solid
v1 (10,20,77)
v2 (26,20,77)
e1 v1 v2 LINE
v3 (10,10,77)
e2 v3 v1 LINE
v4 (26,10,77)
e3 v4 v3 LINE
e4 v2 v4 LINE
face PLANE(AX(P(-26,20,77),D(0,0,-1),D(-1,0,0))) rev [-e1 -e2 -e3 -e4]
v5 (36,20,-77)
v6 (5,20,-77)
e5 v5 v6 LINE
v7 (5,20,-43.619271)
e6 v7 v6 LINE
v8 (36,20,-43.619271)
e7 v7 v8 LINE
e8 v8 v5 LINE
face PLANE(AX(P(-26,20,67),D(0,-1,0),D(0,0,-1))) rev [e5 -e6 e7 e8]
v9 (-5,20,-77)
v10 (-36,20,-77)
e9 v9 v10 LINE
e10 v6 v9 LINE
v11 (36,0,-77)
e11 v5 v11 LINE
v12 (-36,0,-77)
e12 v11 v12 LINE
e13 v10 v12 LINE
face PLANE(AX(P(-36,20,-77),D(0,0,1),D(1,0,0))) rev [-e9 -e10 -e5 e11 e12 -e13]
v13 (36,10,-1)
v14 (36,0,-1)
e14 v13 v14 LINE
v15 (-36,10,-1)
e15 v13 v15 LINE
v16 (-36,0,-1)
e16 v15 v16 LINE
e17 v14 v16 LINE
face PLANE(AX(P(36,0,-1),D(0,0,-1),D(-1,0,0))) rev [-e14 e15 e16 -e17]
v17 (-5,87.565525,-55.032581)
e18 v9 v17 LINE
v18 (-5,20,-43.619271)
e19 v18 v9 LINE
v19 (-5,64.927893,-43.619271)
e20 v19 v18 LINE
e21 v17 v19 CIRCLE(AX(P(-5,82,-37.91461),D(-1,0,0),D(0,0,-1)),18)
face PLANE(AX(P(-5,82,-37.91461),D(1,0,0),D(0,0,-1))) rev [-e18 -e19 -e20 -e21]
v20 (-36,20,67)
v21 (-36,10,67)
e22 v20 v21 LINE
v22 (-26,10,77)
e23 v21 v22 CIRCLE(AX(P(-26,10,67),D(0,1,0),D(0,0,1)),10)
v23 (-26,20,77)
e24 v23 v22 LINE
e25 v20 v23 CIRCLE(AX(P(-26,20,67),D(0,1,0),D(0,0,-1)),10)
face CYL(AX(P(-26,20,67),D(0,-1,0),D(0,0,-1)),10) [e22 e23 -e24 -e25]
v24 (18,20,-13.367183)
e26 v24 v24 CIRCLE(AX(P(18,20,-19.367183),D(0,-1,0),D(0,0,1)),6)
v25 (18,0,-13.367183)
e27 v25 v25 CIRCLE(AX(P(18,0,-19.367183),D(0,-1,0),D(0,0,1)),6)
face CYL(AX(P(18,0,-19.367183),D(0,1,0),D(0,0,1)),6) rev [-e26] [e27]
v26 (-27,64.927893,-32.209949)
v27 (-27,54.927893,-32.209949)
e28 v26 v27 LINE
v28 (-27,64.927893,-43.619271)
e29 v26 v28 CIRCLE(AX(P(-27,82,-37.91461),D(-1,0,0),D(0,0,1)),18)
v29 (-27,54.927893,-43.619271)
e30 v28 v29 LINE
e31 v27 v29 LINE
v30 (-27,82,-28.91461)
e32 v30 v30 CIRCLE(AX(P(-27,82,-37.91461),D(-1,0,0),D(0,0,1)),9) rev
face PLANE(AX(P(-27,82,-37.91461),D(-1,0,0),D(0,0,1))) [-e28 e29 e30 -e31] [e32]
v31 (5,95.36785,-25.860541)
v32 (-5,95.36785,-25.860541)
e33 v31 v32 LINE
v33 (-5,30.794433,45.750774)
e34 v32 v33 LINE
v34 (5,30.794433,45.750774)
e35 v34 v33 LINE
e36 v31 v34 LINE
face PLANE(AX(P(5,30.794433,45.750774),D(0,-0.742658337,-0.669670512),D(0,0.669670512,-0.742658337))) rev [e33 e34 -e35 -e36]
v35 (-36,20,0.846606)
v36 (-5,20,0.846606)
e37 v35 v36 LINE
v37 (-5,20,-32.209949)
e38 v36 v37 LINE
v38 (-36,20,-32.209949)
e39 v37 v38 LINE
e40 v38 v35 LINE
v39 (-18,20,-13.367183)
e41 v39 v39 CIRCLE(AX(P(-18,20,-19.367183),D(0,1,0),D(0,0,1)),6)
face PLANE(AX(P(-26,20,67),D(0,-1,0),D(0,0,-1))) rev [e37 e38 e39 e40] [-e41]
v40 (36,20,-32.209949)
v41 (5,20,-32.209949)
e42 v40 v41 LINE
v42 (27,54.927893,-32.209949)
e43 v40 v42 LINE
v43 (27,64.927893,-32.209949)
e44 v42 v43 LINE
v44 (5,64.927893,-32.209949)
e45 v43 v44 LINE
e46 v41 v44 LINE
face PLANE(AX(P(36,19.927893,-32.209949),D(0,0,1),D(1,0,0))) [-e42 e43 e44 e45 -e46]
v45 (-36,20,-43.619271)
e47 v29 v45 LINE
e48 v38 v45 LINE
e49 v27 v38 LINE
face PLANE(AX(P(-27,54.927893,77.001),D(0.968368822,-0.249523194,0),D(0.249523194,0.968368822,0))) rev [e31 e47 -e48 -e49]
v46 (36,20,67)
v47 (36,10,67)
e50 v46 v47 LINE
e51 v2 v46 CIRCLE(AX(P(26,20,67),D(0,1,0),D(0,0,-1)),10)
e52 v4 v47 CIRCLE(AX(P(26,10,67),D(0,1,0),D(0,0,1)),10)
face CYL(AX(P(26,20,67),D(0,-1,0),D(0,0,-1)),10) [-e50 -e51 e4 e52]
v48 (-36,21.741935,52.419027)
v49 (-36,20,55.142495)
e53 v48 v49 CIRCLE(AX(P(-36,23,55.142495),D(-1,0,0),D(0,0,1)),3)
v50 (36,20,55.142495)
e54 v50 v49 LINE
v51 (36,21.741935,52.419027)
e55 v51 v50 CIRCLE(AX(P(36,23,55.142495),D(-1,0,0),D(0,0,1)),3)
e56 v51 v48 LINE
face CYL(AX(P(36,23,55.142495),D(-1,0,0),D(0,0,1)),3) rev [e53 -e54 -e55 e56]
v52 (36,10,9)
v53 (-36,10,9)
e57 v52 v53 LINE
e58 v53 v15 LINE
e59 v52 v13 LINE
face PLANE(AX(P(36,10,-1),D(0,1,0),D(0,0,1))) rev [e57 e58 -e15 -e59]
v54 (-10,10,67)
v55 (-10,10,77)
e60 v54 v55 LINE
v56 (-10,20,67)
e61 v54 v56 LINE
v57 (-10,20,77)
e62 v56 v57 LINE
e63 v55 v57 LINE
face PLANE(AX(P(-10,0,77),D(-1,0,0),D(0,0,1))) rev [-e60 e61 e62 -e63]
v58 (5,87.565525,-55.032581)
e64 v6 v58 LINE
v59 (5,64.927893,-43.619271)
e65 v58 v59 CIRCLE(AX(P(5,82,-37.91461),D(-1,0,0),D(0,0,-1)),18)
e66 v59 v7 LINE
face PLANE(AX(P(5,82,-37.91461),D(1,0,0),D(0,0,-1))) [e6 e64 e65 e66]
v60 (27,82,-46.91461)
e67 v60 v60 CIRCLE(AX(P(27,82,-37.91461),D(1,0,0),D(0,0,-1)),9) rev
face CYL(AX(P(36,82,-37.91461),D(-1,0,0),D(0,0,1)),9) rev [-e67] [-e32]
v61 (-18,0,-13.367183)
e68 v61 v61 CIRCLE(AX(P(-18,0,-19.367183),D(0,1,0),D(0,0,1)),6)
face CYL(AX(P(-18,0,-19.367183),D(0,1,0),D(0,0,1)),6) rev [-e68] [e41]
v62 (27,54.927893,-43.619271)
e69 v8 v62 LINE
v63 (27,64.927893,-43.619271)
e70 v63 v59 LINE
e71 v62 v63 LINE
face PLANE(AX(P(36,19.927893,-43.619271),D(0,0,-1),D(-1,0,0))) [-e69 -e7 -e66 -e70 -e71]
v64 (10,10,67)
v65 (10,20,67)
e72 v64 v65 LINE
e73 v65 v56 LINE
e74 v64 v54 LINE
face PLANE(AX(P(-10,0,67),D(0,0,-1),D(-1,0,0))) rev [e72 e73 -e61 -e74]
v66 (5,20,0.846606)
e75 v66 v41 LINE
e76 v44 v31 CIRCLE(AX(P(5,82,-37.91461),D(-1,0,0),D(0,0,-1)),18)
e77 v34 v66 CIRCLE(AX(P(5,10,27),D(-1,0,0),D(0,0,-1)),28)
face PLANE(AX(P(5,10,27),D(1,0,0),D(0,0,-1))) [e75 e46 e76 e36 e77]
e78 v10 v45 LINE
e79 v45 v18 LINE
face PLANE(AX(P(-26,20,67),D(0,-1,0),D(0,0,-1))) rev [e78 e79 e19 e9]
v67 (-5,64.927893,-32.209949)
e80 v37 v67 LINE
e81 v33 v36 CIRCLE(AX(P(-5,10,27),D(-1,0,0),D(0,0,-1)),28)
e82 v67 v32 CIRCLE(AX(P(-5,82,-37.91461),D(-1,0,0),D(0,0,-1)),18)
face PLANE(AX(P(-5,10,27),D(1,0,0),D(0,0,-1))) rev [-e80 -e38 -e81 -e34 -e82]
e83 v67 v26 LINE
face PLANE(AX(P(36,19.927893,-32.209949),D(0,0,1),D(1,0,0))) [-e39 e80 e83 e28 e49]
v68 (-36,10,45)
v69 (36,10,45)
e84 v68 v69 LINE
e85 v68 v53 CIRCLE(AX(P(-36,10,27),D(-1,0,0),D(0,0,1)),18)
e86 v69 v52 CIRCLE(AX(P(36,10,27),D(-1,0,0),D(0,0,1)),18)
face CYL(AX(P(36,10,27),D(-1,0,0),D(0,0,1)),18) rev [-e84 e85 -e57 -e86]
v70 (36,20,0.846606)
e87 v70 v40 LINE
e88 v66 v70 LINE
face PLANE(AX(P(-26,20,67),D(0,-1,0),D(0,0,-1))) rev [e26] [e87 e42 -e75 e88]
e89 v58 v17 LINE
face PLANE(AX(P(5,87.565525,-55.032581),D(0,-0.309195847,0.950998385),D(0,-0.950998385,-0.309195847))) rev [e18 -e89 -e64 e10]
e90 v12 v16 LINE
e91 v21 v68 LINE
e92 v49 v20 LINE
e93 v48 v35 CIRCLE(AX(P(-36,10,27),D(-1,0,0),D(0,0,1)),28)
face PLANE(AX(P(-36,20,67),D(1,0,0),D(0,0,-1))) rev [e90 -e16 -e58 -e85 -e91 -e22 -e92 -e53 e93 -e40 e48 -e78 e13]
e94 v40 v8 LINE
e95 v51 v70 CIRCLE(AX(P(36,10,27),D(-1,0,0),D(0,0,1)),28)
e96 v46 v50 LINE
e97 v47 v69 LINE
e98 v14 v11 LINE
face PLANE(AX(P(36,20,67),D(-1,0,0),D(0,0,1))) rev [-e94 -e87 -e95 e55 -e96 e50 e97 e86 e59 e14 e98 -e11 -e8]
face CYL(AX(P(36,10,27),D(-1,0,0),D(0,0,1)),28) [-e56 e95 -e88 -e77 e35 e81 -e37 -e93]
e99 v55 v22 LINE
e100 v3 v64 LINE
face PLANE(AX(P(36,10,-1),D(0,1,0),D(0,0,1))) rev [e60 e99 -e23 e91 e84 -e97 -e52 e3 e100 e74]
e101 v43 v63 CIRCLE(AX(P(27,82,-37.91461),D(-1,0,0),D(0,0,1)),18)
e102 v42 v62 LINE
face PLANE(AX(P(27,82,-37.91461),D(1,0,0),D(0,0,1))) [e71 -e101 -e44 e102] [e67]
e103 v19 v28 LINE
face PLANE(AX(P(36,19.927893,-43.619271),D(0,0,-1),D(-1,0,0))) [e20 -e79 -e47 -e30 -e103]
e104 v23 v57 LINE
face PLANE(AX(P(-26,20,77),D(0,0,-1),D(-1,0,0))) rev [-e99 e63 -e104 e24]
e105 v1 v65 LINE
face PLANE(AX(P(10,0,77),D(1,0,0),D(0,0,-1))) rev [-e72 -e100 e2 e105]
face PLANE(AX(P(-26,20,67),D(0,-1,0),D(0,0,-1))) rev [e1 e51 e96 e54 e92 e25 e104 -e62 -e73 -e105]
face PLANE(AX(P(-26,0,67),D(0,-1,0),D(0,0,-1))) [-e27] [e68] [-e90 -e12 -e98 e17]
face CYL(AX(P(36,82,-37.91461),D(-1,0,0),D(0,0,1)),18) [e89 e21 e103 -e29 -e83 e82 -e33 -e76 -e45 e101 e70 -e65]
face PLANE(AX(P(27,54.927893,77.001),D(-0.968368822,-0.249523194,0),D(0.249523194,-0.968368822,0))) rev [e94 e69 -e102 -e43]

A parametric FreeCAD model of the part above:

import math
import FreeCAD as App
import Part
import Sketcher
from FreeCAD import Vector


def add_polygon(sketch, points):
    """Adds a closed chain of lines whose ends are joined by coincident constraints."""
    first, n = sketch.GeometryCount, len(points)
    for a, b in zip(points, points[1:] + points[:1]):
        sketch.addGeometry(Part.LineSegment(App.Vector(*a, 0), App.Vector(*b, 0)), False)
    for i in range(n):
        sketch.addConstraint(Sketcher.Constraint("Coincident", first + i, 2, first + (i + 1) % n, 1))

doc = App.newDocument("Part")
body = doc.addObject("PartDesign::Body", "Body")

# Sketch on XZ plane
sketch1 = doc.addObject("Sketcher::SketchObject", "Sketch")
body.addObject(sketch1)
sketch1.AttachmentSupport = (doc.XZ_Plane, [""])
sketch1.MapMode = "FlatFace"
sketch1.addGeometry([
    Part.LineSegment(Vector(-26, 77, 0), Vector(26, 77, 0)),  # 0
    Part.ArcOfCircle(Part.Circle(Vector(26, 67, 0), Vector(0, 0, 1), 10), math.radians(0), math.radians(90)),  # 1
    Part.LineSegment(Vector(36, 67, 0), Vector(36, -77, 0)),  # 2
    Part.LineSegment(Vector(36, -77, 0), Vector(-36, -77, 0)),  # 3
    Part.LineSegment(Vector(-36, -77, 0), Vector(-36, 67, 0)),  # 4
    Part.ArcOfCircle(Part.Circle(Vector(-26, 67, 0), Vector(0, 0, 1), 10), math.radians(90), math.radians(180)),  # 5
], False)
sketch1.addConstraint([
    Sketcher.Constraint("Tangent", 0, 2, 1, 2),
    Sketcher.Constraint("Tangent", 1, 1, 2, 1),
    Sketcher.Constraint("Coincident", 2, 2, 3, 1),
    Sketcher.Constraint("Coincident", 3, 2, 4, 1),
    Sketcher.Constraint("Tangent", 4, 2, 5, 2),
    Sketcher.Constraint("Tangent", 5, 1, 0, 1),
    Sketcher.Constraint("Horizontal", 0),
    Sketcher.Constraint("Vertical", 2),
    Sketcher.Constraint("Horizontal", 3),
    Sketcher.Constraint("Vertical", 4),
    Sketcher.Constraint("Equal", 1, 5),
    Sketcher.Constraint("Radius", 1, 10.0),
    Sketcher.Constraint("DistanceX", 0, 1, 0, 2, 52.0),
    Sketcher.Constraint("DistanceY", 2, 2, 2, 1, 144.0),
    Sketcher.Constraint("DistanceX", -1, 1, 1, 3, 26.0),
    Sketcher.Constraint("DistanceY", -1, 1, 1, 3, 67.0),
])
pad1 = doc.addObject("PartDesign::Pad", "Pad")
body.addObject(pad1)
pad1.Profile = sketch1
pad1.Length = 20
pad1.Reversed = True

# Sketch on YZ plane
sketch2 = doc.addObject("Sketcher::SketchObject", "Sketch001")
body.addObject(sketch2)
sketch2.AttachmentSupport = (doc.YZ_Plane, [""])
sketch2.MapMode = "FlatFace"
sketch2.AttachmentOffset = App.Placement(Vector(0, 0, -36), App.Rotation())
add_polygon(sketch2, [(10, -1), (0, -1), (0, 77), (10, 77)])  # lines 0-3
sketch2.addConstraint([
    Sketcher.Constraint("Horizontal", 0),
    Sketcher.Constraint("Vertical", 1),
    Sketcher.Constraint("Horizontal", 2),
    Sketcher.Constraint("Vertical", 3),
    Sketcher.Constraint("PointOnObject", 0, 2, -2),
    Sketcher.Constraint("DistanceX", 0, 2, 0, 1, 10.0),
    Sketcher.Constraint("DistanceY", 1, 1, 1, 2, 78.0),
    Sketcher.Constraint("DistanceY", 0, 2, -1, 1, 1.0),
])
pocket1 = doc.addObject("PartDesign::Pocket", "Pocket")
body.addObject(pocket1)
pocket1.Profile = sketch2
pocket1.Type = "ThroughAll"
pocket1.Reversed = True

# Sketch on XZ plane
sketch3 = doc.addObject("Sketcher::SketchObject", "Sketch002")
body.addObject(sketch3)
sketch3.AttachmentSupport = (doc.XZ_Plane, [""])
sketch3.MapMode = "FlatFace"
sketch3.AttachmentOffset = App.Placement(Vector(0, 0, -20), App.Rotation())
add_polygon(sketch3, [(-10, 67), (-10, 77), (10, 77), (10, 67)])  # lines 0-3
sketch3.addConstraint([
    Sketcher.Constraint("Vertical", 0),
    Sketcher.Constraint("Horizontal", 1),
    Sketcher.Constraint("Vertical", 2),
    Sketcher.Constraint("Horizontal", 3),
    Sketcher.Constraint("DistanceX", 1, 1, 1, 2, 20.0),
    Sketcher.Constraint("DistanceY", 0, 1, 0, 2, 10.0),
    Sketcher.Constraint("DistanceX", 0, 2, -1, 1, 10.0),
    Sketcher.Constraint("DistanceY", -1, 1, 0, 2, 77.0),
])
pocket2 = doc.addObject("PartDesign::Pocket", "Pocket001")
body.addObject(pocket2)
pocket2.Profile = sketch3
pocket2.Type = "ThroughAll"
pocket2.Reversed = True

# Sketch on YZ plane
sketch4 = doc.addObject("Sketcher::SketchObject", "Sketch003")
body.addObject(sketch4)
sketch4.AttachmentSupport = (doc.YZ_Plane, [""])
sketch4.MapMode = "FlatFace"
sketch4.AttachmentOffset = App.Placement(Vector(0, 0, -36), App.Rotation())
sketch4.addGeometry([
    Part.ArcOfCircle(Part.Circle(Vector(10, 27, 0), Vector(0, 0, 1), 28), math.radians(-69), math.radians(65)),  # 0
    Part.ArcOfCircle(Part.Circle(Vector(10, 27, 0), Vector(0, 0, 1), 28), math.radians(-90), math.radians(-69)),  # 1
    Part.LineSegment(Vector(10, -1, 0), Vector(10, 9, 0)),  # 2
    Part.ArcOfCircle(Part.Circle(Vector(10, 27, 0), Vector(0, 0, 1), 18), math.radians(-90), math.radians(-56)),  # 3
    Part.ArcOfCircle(Part.Circle(Vector(10, 27, 0), Vector(0, 0, 1), 18), math.radians(-56), math.radians(56)),  # 4
    Part.ArcOfCircle(Part.Circle(Vector(10, 27, 0), Vector(0, 0, 1), 18), math.radians(56), math.radians(90)),  # 5
    Part.LineSegment(Vector(10, 45, 0), Vector(10, 55, 0)),  # 6
    Part.ArcOfCircle(Part.Circle(Vector(10, 27, 0), Vector(0, 0, 1), 28), math.radians(69), math.radians(90)),  # 7
    Part.LineSegment(Vector(20, 53.2, 0), Vector(20, 55.1, 0)),  # 8
    Part.ArcOfCircle(Part.Circle(Vector(23, 55.1, 0), Vector(0, 0, 1), 3), math.radians(180), math.radians(245)),  # 9
], False)
sketch4.addConstraint([
    Sketcher.Constraint("Tangent", 0, 1, 1, 2),
    Sketcher.Constraint("Coincident", 1, 1, 2, 1),
    Sketcher.Constraint("Coincident", 2, 2, 3, 1),
    Sketcher.Constraint("Tangent", 3, 2, 4, 1),
    Sketcher.Constraint("Tangent", 4, 2, 5, 1),
    Sketcher.Constraint("Coincident", 5, 2, 6, 1),
    Sketcher.Constraint("Coincident", 6, 2, 7, 2),
    Sketcher.Constraint("Coincident", 7, 1, 8, 1),
    Sketcher.Constraint("Tangent", 8, 2, 9, 1),
    Sketcher.Constraint("Tangent", 9, 2, 0, 2),
    Sketcher.Constraint("Vertical", 2),
    Sketcher.Constraint("Vertical", 6),
    Sketcher.Constraint("Vertical", 8),
    Sketcher.Constraint("Coincident", 3, 3, 0, 3),
    Sketcher.Constraint("Coincident", 5, 3, 0, 3),
    Sketcher.Constraint("Coincident", 7, 3, 0, 3),
    Sketcher.Constraint("Equal", 0, 1),
    Sketcher.Constraint("Equal", 1, 7),
    Sketcher.Constraint("Vertical", 7, 3, 1, 1),
    Sketcher.Constraint("Vertical", 0, 1, 3, 2),
    Sketcher.Constraint("Vertical", 3, 2, 4, 2),
    Sketcher.Constraint("Vertical", 2, 2, 5, 2),
    Sketcher.Constraint("Vertical", 4, 2, 7, 1),
    Sketcher.Constraint("Radius", 0, 28.0),
    Sketcher.Constraint("Radius", 3, 18.0),
    Sketcher.Constraint("Radius", 9, 3.0),
    Sketcher.Constraint("DistanceX", -1, 1, 0, 3, 10.0),
    Sketcher.Constraint("DistanceY", -1, 1, 0, 3, 27.0),
    Sketcher.Constraint("DistanceX", -1, 1, 9, 3, 23.0),
])
pad2 = doc.addObject("PartDesign::Pad", "Pad001")
body.addObject(pad2)
pad2.Profile = sketch4
pad2.Length = 72

# Sketch on YZ plane
sketch5 = doc.addObject("Sketcher::SketchObject", "Sketch004")
body.addObject(sketch5)
sketch5.AttachmentSupport = (doc.YZ_Plane, [""])
sketch5.MapMode = "FlatFace"
sketch5.AttachmentOffset = App.Placement(Vector(0, 0, -36), App.Rotation())
sketch5.addGeometry(Part.Circle(Vector(10, 27, 0), Vector(0, 0, 1), 18), False)
sketch5.addConstraint([
    Sketcher.Constraint("Diameter", 0, 36.0),
    Sketcher.Constraint("DistanceX", -1, 1, 0, 3, 10.0),
    Sketcher.Constraint("DistanceY", -1, 1, 0, 3, 27.0),
])
pocket3 = doc.addObject("PartDesign::Pocket", "Pocket002")
body.addObject(pocket3)
pocket3.Profile = sketch5
pocket3.Type = "ThroughAll"
pocket3.Reversed = True

# Sketch on XZ plane
sketch6 = doc.addObject("Sketcher::SketchObject", "Sketch005")
body.addObject(sketch6)
sketch6.AttachmentSupport = (doc.XZ_Plane, [""])
sketch6.MapMode = "FlatFace"
sketch6.AttachmentOffset = App.Placement(Vector(0, 0, -20), App.Rotation())
sketch6.addGeometry(Part.Circle(Vector(-18, -19, 0), Vector(0, 0, 1), 6), False)
sketch6.addConstraint([
    Sketcher.Constraint("Diameter", 0, 12.0),
    Sketcher.Constraint("DistanceX", 0, 3, -1, 1, 18.0),
    Sketcher.Constraint("DistanceY", 0, 3, -1, 1, 19.367183),
])
pocket4 = doc.addObject("PartDesign::Pocket", "Pocket003")
body.addObject(pocket4)
pocket4.Profile = sketch6
pocket4.Type = "ThroughAll"
pocket4.Reversed = True
doc.recompute()

mirrored = doc.addObject("PartDesign::Mirrored", "Mirrored")
body.addObject(mirrored)
mirrored.Originals = [pocket4]
mirrored.MirrorPlane = (doc.YZ_Plane, [""])
body.Tip = mirrored
body2 = doc.addObject("PartDesign::Body", "Body001")

# Sketch on YZ plane
sketch7 = doc.addObject("Sketcher::SketchObject", "Sketch006")
body2.addObject(sketch7)
sketch7.AttachmentSupport = (doc.getObject("YZ_Plane001"), [""])
sketch7.MapMode = "FlatFace"
sketch7.AttachmentOffset = App.Placement(Vector(0, 0, -36), App.Rotation())
sketch7.addGeometry([
    Part.Circle(Vector(82, -38, 0), Vector(0, 0, 1), 18),
    Part.Circle(Vector(82, -38, 0), Vector(0, 0, 1), 9),
], False)
sketch7.addConstraint([
    Sketcher.Constraint("Coincident", 1, 3, 0, 3),
    Sketcher.Constraint("Diameter", 0, 36.0),
    Sketcher.Constraint("Diameter", 1, 18.0),
    Sketcher.Constraint("DistanceX", -1, 1, 0, 3, 82.0),
    Sketcher.Constraint("DistanceY", 0, 3, -1, 1, 37.91461),
])
pad3 = doc.addObject("PartDesign::Pad", "Pad002")
body2.addObject(pad3)
pad3.Profile = sketch7
pad3.Length = 72

# Sketch on YZ plane
sketch8 = doc.addObject("Sketcher::SketchObject", "Sketch007")
body2.addObject(sketch8)
sketch8.AttachmentSupport = (doc.getObject("YZ_Plane001"), [""])
sketch8.MapMode = "FlatFace"
sketch8.AttachmentOffset = App.Placement(Vector(0, 0, -36), App.Rotation())
sketch8.addGeometry(Part.Circle(Vector(82, -38, 0), Vector(0, 0, 1), 18), False)
sketch8.addConstraint([
    Sketcher.Constraint("Diameter", 0, 36.0),
    Sketcher.Constraint("DistanceX", -1, 1, 0, 3, 82.0),
    Sketcher.Constraint("DistanceY", 0, 3, -1, 1, 37.91461),
])
pocket5 = doc.addObject("PartDesign::Pocket", "Pocket004")
body2.addObject(pocket5)
pocket5.Profile = sketch8
pocket5.Length = 9
pocket5.Reversed = True
doc.recompute()

mirrored2 = doc.addObject("PartDesign::Mirrored", "Mirrored001")
body2.addObject(mirrored2)
mirrored2.Originals = [pocket5]
mirrored2.MirrorPlane = (doc.getObject("YZ_Plane001"), [""])
body2.Tip = mirrored2

# Sketch on YZ plane
sketch9 = doc.addObject("Sketcher::SketchObject", "Sketch008")
body2.addObject(sketch9)
sketch9.AttachmentSupport = (doc.getObject("YZ_Plane001"), [""])
sketch9.MapMode = "FlatFace"
sketch9.AttachmentOffset = App.Placement(Vector(0, 0, -27), App.Rotation())
sketch9.addGeometry([
    Part.LineSegment(Vector(20, -44, 0), Vector(20, -32, 0)),
    Part.LineSegment(Vector(20, -32, 0), Vector(65, -32, 0)),
    Part.ArcOfCircle(Part.Circle(Vector(82, -38, 0), Vector(0, 0, 1), 18), math.radians(162), math.radians(198)),
    Part.LineSegment(Vector(65, -44, 0), Vector(20, -44, 0)),
], False)
sketch9.addConstraint([
    Sketcher.Constraint("Coincident", 0, 2, 1, 1),
    Sketcher.Constraint("Coincident", 1, 2, 2, 1),
    Sketcher.Constraint("Coincident", 2, 2, 3, 1),
    Sketcher.Constraint("Coincident", 3, 2, 0, 1),
    Sketcher.Constraint("Vertical", 0),
    Sketcher.Constraint("Horizontal", 1),
    Sketcher.Constraint("Horizontal", 3),
    Sketcher.Constraint("Vertical", 1, 2, 2, 2),
    Sketcher.Constraint("Radius", 2, 18.0),
    Sketcher.Constraint("DistanceX", 1, 1, 1, 2, 45.0),
    Sketcher.Constraint("DistanceX", -1, 1, 2, 3, 82.0),
    Sketcher.Constraint("DistanceY", 0, 1, 0, 2, 11.409322),
    Sketcher.Constraint("DistanceY", 2, 3, -1, 1, 37.91461),
])
pad4 = doc.addObject("PartDesign::Pad", "Pad003")
body2.addObject(pad4)
pad4.Profile = sketch9
pad4.Type = "TwoLengths"
pad4.Length = 9
pad4.Length2 = 63
pad4.Reversed = True

# Sketch on XY plane
sketch10 = doc.addObject("Sketcher::SketchObject", "Sketch009")
body2.addObject(sketch10)
sketch10.AttachmentSupport = (doc.getObject("XY_Plane001"), [""])
sketch10.MapMode = "FlatFace"
sketch10.AttachmentOffset = App.Placement(Vector(0, 0, -43.619271), App.Rotation())
add_polygon(sketch10, [(27, 55), (27, 65), (36, 65), (36, 20)])  # lines 0-3
add_polygon(sketch10, [(-27, 65), (-27, 55), (-36, 20), (-36, 65)])  # lines 4-7
sketch10.addConstraint([
    Sketcher.Constraint("Vertical", 0),
    Sketcher.Constraint("Horizontal", 1),
    Sketcher.Constraint("Vertical", 2),
    Sketcher.Constraint("Vertical", 4),
    Sketcher.Constraint("Vertical", 6),
    Sketcher.Constraint("Horizontal", 7),
    Sketcher.Constraint("Symmetric", 3, 2, 4, 2, -2),
    Sketcher.Constraint("Symmetric", 2, 2, 5, 2, -2),
    Sketcher.Constraint("Horizontal", 1, 2, 6, 2),
    Sketcher.Constraint("DistanceX", 1, 1, 1, 2, 9.0),
    Sketcher.Constraint("DistanceY", 0, 1, 0, 2, 10.0),
    Sketcher.Constraint("DistanceX", -1, 1, 0, 2, 27.0),
    Sketcher.Constraint("DistanceY", -1, 1, 2, 2, 20.0),
    Sketcher.Constraint("Distance", 3, 36.068791),
])
pocket6 = doc.addObject("PartDesign::Pocket", "Pocket005")
body2.addObject(pocket6)
pocket6.Profile = sketch10
pocket6.Length = 42.619271
pocket6.Reversed = True
doc.recompute()

boolean = doc.addObject("PartDesign::Boolean", "Boolean")
body.addObject(boolean)
boolean.Type = "Fuse"
boolean.addObjects([body2])

# Sketch on YZ plane
sketch11 = doc.addObject("Sketcher::SketchObject", "Sketch010")
body.addObject(sketch11)
sketch11.AttachmentSupport = (doc.YZ_Plane, [""])
sketch11.MapMode = "FlatFace"
sketch11.addGeometry([
    Part.LineSegment(Vector(95, -26, 0), Vector(31, 46, 0)),  # 0
    Part.ArcOfCircle(Part.Circle(Vector(10, 27, 0), Vector(0, 0, 1), 28), math.radians(-69), math.radians(42)),  # 1
    Part.LineSegment(Vector(20, 1, 0), Vector(20, -32, 0)),  # 2
    Part.LineSegment(Vector(20, -32, 0), Vector(65, -32, 0)),  # 3
    Part.ArcOfCircle(Part.Circle(Vector(82, -38, 0), Vector(0, 0, 1), 18), math.radians(42), math.radians(162)),  # 4
], False)
sketch11.addConstraint([
    Sketcher.Constraint("Tangent", 0, 2, 1, 2),
    Sketcher.Constraint("Coincident", 1, 1, 2, 1),
    Sketcher.Constraint("Coincident", 2, 2, 3, 1),
    Sketcher.Constraint("Coincident", 3, 2, 4, 2),
    Sketcher.Constraint("Tangent", 4, 1, 0, 1),
    Sketcher.Constraint("Vertical", 2),
    Sketcher.Constraint("Horizontal", 3),
    Sketcher.Constraint("Radius", 1, 28.0),
    Sketcher.Constraint("Radius", 4, 18.0),
    Sketcher.Constraint("DistanceX", -1, 1, 1, 3, 10.0),
    Sketcher.Constraint("DistanceY", -1, 1, 1, 3, 27.0),
    Sketcher.Constraint("DistanceX", -1, 1, 4, 3, 82.0),
    Sketcher.Constraint("DistanceX", -1, 1, 1, 1, 20.0),
    Sketcher.Constraint("DistanceX", 3, 1, 3, 2, 44.927893),
    Sketcher.Constraint("DistanceY", 2, 2, 2, 1, 33.056555),
])
pad5 = doc.addObject("PartDesign::Pad", "Pad004")
body.addObject(pad5)
pad5.Profile = sketch11
pad5.Length = 10
pad5.Midplane = True

# Sketch on YZ plane
sketch12 = doc.addObject("Sketcher::SketchObject", "Sketch011")
body.addObject(sketch12)
sketch12.AttachmentSupport = (doc.YZ_Plane, [""])
sketch12.MapMode = "FlatFace"
sketch12.addGeometry([
    Part.LineSegment(Vector(65, -44, 0), Vector(20, -44, 0)),
    Part.LineSegment(Vector(20, -44, 0), Vector(20, -77, 0)),
    Part.LineSegment(Vector(20, -77, 0), Vector(88, -55, 0)),
    Part.ArcOfCircle(Part.Circle(Vector(82, -38, 0), Vector(0, 0, 1), 18), math.radians(-162), math.radians(-72)),
], False)
sketch12.addConstraint([
    Sketcher.Constraint("Coincident", 0, 2, 1, 1),
    Sketcher.Constraint("Coincident", 1, 2, 2, 1),
    Sketcher.Constraint("Tangent", 2, 2, 3, 2),
    Sketcher.Constraint("Coincident", 3, 1, 0, 1),
    Sketcher.Constraint("Horizontal", 0),
    Sketcher.Constraint("Vertical", 1),
    Sketcher.Constraint("Radius", 3, 18.0),
    Sketcher.Constraint("DistanceX", -1, 1, 3, 3, 82.0),
    Sketcher.Constraint("DistanceX", -1, 1, 0, 2, 20.0),
    Sketcher.Constraint("DistanceY", 1, 2, -1, 1, 77.0),
    Sketcher.Constraint("DistanceY", 1, 2, 1, 1, 33.380729),
    Sketcher.Constraint("Distance", 2, 71.04694),
])
pad6 = doc.addObject("PartDesign::Pad", "Pad005")
body.addObject(pad6)
pad6.Profile = sketch12
pad6.Length = 10
pad6.Midplane = True

doc.recompute()
